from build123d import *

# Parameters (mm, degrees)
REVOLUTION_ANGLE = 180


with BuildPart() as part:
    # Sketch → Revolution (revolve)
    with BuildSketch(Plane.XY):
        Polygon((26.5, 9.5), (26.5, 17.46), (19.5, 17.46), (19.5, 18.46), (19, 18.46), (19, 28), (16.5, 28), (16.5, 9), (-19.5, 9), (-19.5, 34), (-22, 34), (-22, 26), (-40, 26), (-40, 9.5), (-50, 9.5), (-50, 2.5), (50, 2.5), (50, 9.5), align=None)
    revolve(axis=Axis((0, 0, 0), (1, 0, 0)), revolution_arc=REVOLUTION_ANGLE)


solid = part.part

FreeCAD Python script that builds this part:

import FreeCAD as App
import Part
import Sketcher

doc = App.newDocument("Part")
body = doc.addObject("PartDesign::Body", "Body")

# Sketch on XY plane
sketch1 = doc.addObject("Sketcher::SketchObject", "Sketch")
body.addObject(sketch1)
sketch1.AttachmentSupport = (doc.XY_Plane, [""])
sketch1.MapMode = "FlatFace"
sketch1.addGeometry(Part.LineSegment(App.Vector(26.5, 9.5, 0), App.Vector(26.5, 17.46, 0)), False)
sketch1.addGeometry(Part.LineSegment(App.Vector(26.5, 17.46, 0), App.Vector(19.5, 17.46, 0)), False)
sketch1.addGeometry(Part.LineSegment(App.Vector(19.5, 17.46, 0), App.Vector(19.5, 18.46, 0)), False)
sketch1.addGeometry(Part.LineSegment(App.Vector(19.5, 18.46, 0), App.Vector(19, 18.46, 0)), False)
sketch1.addGeometry(Part.LineSegment(App.Vector(19, 18.46, 0), App.Vector(19, 28, 0)), False)
sketch1.addGeometry(Part.LineSegment(App.Vector(19, 28, 0), App.Vector(16.5, 28, 0)), False)
sketch1.addGeometry(Part.LineSegment(App.Vector(16.5, 28, 0), App.Vector(16.5, 9, 0)), False)
sketch1.addGeometry(Part.LineSegment(App.Vector(16.5, 9, 0), App.Vector(-19.5, 9, 0)), False)
sketch1.addGeometry(Part.LineSegment(App.Vector(-19.5, 9, 0), App.Vector(-19.5, 34, 0)), False)
sketch1.addGeometry(Part.LineSegment(App.Vector(-19.5, 34, 0), App.Vector(-22, 34, 0)), False)
sketch1.addGeometry(Part.LineSegment(App.Vector(-22, 34, 0), App.Vector(-22, 26, 0)), False)
sketch1.addGeometry(Part.LineSegment(App.Vector(-22, 26, 0), App.Vector(-40, 26, 0)), False)
sketch1.addGeometry(Part.LineSegment(App.Vector(-40, 26, 0), App.Vector(-40, 9.5, 0)), False)
sketch1.addGeometry(Part.LineSegment(App.Vector(-40, 9.5, 0), App.Vector(-50, 9.5, 0)), False)
sketch1.addGeometry(Part.LineSegment(App.Vector(-50, 9.5, 0), App.Vector(-50, 2.5, 0)), False)
sketch1.addGeometry(Part.LineSegment(App.Vector(-50, 2.5, 0), App.Vector(50, 2.5, 0)), False)
sketch1.addGeometry(Part.LineSegment(App.Vector(50, 2.5, 0), App.Vector(50, 9.5, 0)), False)
sketch1.addGeometry(Part.LineSegment(App.Vector(50, 9.5, 0), App.Vector(26.5, 9.5, 0)), False)
sketch1.addConstraint(Sketcher.Constraint("Coincident", 0, 2, 1, 1))
sketch1.addConstraint(Sketcher.Constraint("Coincident", 1, 2, 2, 1))
sketch1.addConstraint(Sketcher.Constraint("Coincident", 2, 2, 3, 1))
sketch1.addConstraint(Sketcher.Constraint("Coincident", 3, 2, 4, 1))
sketch1.addConstraint(Sketcher.Constraint("Coincident", 4, 2, 5, 1))
sketch1.addConstraint(Sketcher.Constraint("Coincident", 5, 2, 6, 1))
sketch1.addConstraint(Sketcher.Constraint("Coincident", 6, 2, 7, 1))
sketch1.addConstraint(Sketcher.Constraint("Coincident", 7, 2, 8, 1))
sketch1.addConstraint(Sketcher.Constraint("Coincident", 8, 2, 9, 1))
sketch1.addConstraint(Sketcher.Constraint("Coincident", 9, 2, 10, 1))
sketch1.addConstraint(Sketcher.Constraint("Coincident", 10, 2, 11, 1))
sketch1.addConstraint(Sketcher.Constraint("Coincident", 11, 2, 12, 1))
sketch1.addConstraint(Sketcher.Constraint("Coincident", 12, 2, 13, 1))
sketch1.addConstraint(Sketcher.Constraint("Coincident", 13, 2, 14, 1))
sketch1.addConstraint(Sketcher.Constraint("Coincident", 14, 2, 15, 1))
sketch1.addConstraint(Sketcher.Constraint("Coincident", 15, 2, 16, 1))
sketch1.addConstraint(Sketcher.Constraint("Coincident", 16, 2, 17, 1))
sketch1.addConstraint(Sketcher.Constraint("Coincident", 17, 2, 0, 1))
sketch1.addConstraint(Sketcher.Constraint("Vertical", 0))
sketch1.addConstraint(Sketcher.Constraint("Horizontal", 1))
sketch1.addConstraint(Sketcher.Constraint("Vertical", 2))
sketch1.addConstraint(Sketcher.Constraint("Horizontal", 3))
sketch1.addConstraint(Sketcher.Constraint("Vertical", 4))
sketch1.addConstraint(Sketcher.Constraint("Horizontal", 5))
sketch1.addConstraint(Sketcher.Constraint("Vertical", 6))
sketch1.addConstraint(Sketcher.Constraint("Horizontal", 7))
sketch1.addConstraint(Sketcher.Constraint("Vertical", 8))
sketch1.addConstraint(Sketcher.Constraint("Horizontal", 9))
sketch1.addConstraint(Sketcher.Constraint("Vertical", 10))
sketch1.addConstraint(Sketcher.Constraint("Horizontal", 11))
sketch1.addConstraint(Sketcher.Constraint("Vertical", 12))
sketch1.addConstraint(Sketcher.Constraint("Horizontal", 13))
sketch1.addConstraint(Sketcher.Constraint("Vertical", 14))
sketch1.addConstraint(Sketcher.Constraint("Horizontal", 15))
sketch1.addConstraint(Sketcher.Constraint("Vertical", 16))
sketch1.addConstraint(Sketcher.Constraint("Horizontal", 17))
sketch1.addConstraint(Sketcher.Constraint("Symmetric", 13, 2, 16, 2, -2))
sketch1.addConstraint(Sketcher.Constraint("Equal", 5, 9))
sketch1.addConstraint(Sketcher.Constraint("Equal", 1, 14))
sketch1.addConstraint(Sketcher.Constraint("DistanceX", 1, 2, 1, 1, 7.0))
sketch1.addConstraint(Sketcher.Constraint("DistanceX", 7, 2, 7, 1, 36.0))
sketch1.addConstraint(Sketcher.Constraint("DistanceX", 11, 2, 11, 1, 18.0))
sketch1.addConstraint(Sketcher.Constraint("DistanceX", 13, 2, 13, 1, 10.0))
sketch1.addConstraint(Sketcher.Constraint("DistanceX", 15, 1, 15, 2, 100.0))
sketch1.addConstraint(Sketcher.Constraint("DistanceY", 2, 1, 2, 2, 1.0))
sketch1.addConstraint(Sketcher.Constraint("DistanceY", 6, 2, 6, 1, 19.0))
sketch1.addConstraint(Sketcher.Constraint("DistanceY", 8, 1, 8, 2, 25.0))
sketch1.addConstraint(Sketcher.Constraint("DistanceY", 10, 2, 10, 1, 8.0))
sketch1.addConstraint(Sketcher.Constraint("DistanceX", 3, 2, 3, 1, 0.5))
sketch1.addConstraint(Sketcher.Constraint("DistanceX", 5, 2, 5, 1, 2.5))
sketch1.addConstraint(Sketcher.Constraint("DistanceY", 12, 2, 12, 1, 16.5))
sketch1.addConstraint(Sketcher.Constraint("DistanceY", -1, 1, 4, 2, 28.0))
sketch1.addConstraint(Sketcher.Constraint("DistanceY", 0, 1, 0, 2, 7.96))
revolution = doc.addObject("PartDesign::Revolution", "Revolution")
body.addObject(revolution)
revolution.Profile = sketch1
revolution.ReferenceAxis = (sketch1, ["H_Axis"])
revolution.Angle = 180

doc.recompute()
